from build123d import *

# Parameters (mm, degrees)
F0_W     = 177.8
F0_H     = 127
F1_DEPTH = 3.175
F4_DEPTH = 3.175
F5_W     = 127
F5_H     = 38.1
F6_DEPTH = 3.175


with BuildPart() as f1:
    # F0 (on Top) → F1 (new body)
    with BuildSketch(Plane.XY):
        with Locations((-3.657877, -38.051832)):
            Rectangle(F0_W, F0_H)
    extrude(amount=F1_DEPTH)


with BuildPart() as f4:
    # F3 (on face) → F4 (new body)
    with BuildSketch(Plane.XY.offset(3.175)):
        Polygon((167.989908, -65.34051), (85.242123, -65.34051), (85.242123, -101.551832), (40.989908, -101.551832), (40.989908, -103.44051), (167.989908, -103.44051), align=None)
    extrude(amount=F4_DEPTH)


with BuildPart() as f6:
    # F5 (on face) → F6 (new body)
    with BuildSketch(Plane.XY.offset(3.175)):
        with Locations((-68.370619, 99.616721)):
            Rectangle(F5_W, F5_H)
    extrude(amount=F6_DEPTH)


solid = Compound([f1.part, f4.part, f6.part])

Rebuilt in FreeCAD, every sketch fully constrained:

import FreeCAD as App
import Part
import Sketcher
Q = App.Units.Quantity


def add_polygon(sketch, points):
    """Adds a closed chain of lines whose ends are joined by coincident constraints."""
    first, n = sketch.GeometryCount, len(points)
    for a, b in zip(points, points[1:] + points[:1]):
        sketch.addGeometry(Part.LineSegment(App.Vector(*a, 0), App.Vector(*b, 0)), False)
    for i in range(n):
        sketch.addConstraint(Sketcher.Constraint("Coincident", first + i, 2, first + (i + 1) % n, 1))

doc = App.newDocument("Part")
body = doc.addObject("PartDesign::Body", "Body")

# Sketch on XY plane
sketch1 = body.newObject("Sketcher::SketchObject", "Sketch")
sketch1.AttachmentSupport = (doc.getObject("XY_Plane"), [""])
sketch1.MapMode = "FlatFace"
add_polygon(sketch1, [(-92.557877, 25.448168), (-92.557877, -101.551832), (85.242123, -101.551832), (85.242123, 25.448168)])  # lines 0-3
sketch1.addConstraint(Sketcher.Constraint("Vertical", 0))
sketch1.addConstraint(Sketcher.Constraint("Horizontal", 1))
sketch1.addConstraint(Sketcher.Constraint("Vertical", 2))
sketch1.addConstraint(Sketcher.Constraint("Horizontal", 3))
sketch1.addConstraint(Sketcher.Constraint("DistanceX", 1, 1, 1, 2, Q("7 in")))
sketch1.addConstraint(Sketcher.Constraint("DistanceY", 0, 2, 0, 1, Q("5 in")))
sketch1.addConstraint(Sketcher.Constraint("DistanceX", 0, 2, -1, 1, 92.557877))
sketch1.addConstraint(Sketcher.Constraint("DistanceY", 0, 2, -1, 1, 101.551832))
pad1 = body.newObject("PartDesign::Pad", "Pad")
pad1.Profile = sketch1
pad1.Length = Q("0.125 in")
body2 = doc.addObject("PartDesign::Body", "Body001")

# Sketch on XY plane
sketch2 = body2.newObject("Sketcher::SketchObject", "Sketch001")
sketch2.AttachmentSupport = (doc.getObject("XY_Plane001"), [""])
sketch2.MapMode = "FlatFace"
sketch2.AttachmentOffset = App.Placement(App.Vector(0, 0, 0.125 * 25.4), App.Rotation())
add_polygon(sketch2, [(167.989908, -65.34051), (85.242123, -65.34051), (85.242123, -101.551832), (40.989908, -101.551832), (40.989908, -103.44051), (167.989908, -103.44051)])  # lines 0-5
sketch2.addConstraint(Sketcher.Constraint("Horizontal", 0))
sketch2.addConstraint(Sketcher.Constraint("Vertical", 1))
sketch2.addConstraint(Sketcher.Constraint("Horizontal", 2))
sketch2.addConstraint(Sketcher.Constraint("Vertical", 3))
sketch2.addConstraint(Sketcher.Constraint("Horizontal", 4))
sketch2.addConstraint(Sketcher.Constraint("Vertical", 5))
sketch2.addConstraint(Sketcher.Constraint("DistanceX", 4, 1, 4, 2, Q("5 in")))
sketch2.addConstraint(Sketcher.Constraint("DistanceY", 5, 1, 5, 2, Q("1.5 in")))
sketch2.addConstraint(Sketcher.Constraint("DistanceX", 0, 2, 0, 1, 82.747785))
sketch2.addConstraint(Sketcher.Constraint("DistanceY", 1, 2, 1, 1, 36.211322))
sketch2.addConstraint(Sketcher.Constraint("DistanceY", 0, 2, -1, 1, 65.34051))
sketch2.addConstraint(Sketcher.Constraint("DistanceX", -1, 1, 4, 2, 167.989908))
pad2 = body2.newObject("PartDesign::Pad", "Pad001")
pad2.Profile = sketch2
pad2.Length = Q("0.125 in")
body3 = doc.addObject("PartDesign::Body", "Body002")

# Sketch on XY plane
sketch3 = body3.newObject("Sketcher::SketchObject", "Sketch002")
sketch3.AttachmentSupport = (doc.getObject("XY_Plane002"), [""])
sketch3.MapMode = "FlatFace"
sketch3.AttachmentOffset = App.Placement(App.Vector(0, 0, 0.125 * 25.4), App.Rotation())
add_polygon(sketch3, [(-131.870619, 118.666721), (-131.870619, 80.566721), (-4.870619, 80.566721), (-4.870619, 118.666721)])  # lines 0-3
sketch3.addConstraint(Sketcher.Constraint("Vertical", 0))
sketch3.addConstraint(Sketcher.Constraint("Horizontal", 1))
sketch3.addConstraint(Sketcher.Constraint("Vertical", 2))
sketch3.addConstraint(Sketcher.Constraint("Horizontal", 3))
sketch3.addConstraint(Sketcher.Constraint("DistanceX", 1, 1, 1, 2, Q("5 in")))
sketch3.addConstraint(Sketcher.Constraint("DistanceY", 0, 2, 0, 1, Q("1.5 in")))
sketch3.addConstraint(Sketcher.Constraint("DistanceX", 0, 2, -1, 1, 131.870619))
sketch3.addConstraint(Sketcher.Constraint("DistanceY", -1, 1, 0, 2, 80.566721))
pad3 = body3.newObject("PartDesign::Pad", "Pad002")
pad3.Profile = sketch3
pad3.Length = Q("0.125 in")

doc.recompute()
